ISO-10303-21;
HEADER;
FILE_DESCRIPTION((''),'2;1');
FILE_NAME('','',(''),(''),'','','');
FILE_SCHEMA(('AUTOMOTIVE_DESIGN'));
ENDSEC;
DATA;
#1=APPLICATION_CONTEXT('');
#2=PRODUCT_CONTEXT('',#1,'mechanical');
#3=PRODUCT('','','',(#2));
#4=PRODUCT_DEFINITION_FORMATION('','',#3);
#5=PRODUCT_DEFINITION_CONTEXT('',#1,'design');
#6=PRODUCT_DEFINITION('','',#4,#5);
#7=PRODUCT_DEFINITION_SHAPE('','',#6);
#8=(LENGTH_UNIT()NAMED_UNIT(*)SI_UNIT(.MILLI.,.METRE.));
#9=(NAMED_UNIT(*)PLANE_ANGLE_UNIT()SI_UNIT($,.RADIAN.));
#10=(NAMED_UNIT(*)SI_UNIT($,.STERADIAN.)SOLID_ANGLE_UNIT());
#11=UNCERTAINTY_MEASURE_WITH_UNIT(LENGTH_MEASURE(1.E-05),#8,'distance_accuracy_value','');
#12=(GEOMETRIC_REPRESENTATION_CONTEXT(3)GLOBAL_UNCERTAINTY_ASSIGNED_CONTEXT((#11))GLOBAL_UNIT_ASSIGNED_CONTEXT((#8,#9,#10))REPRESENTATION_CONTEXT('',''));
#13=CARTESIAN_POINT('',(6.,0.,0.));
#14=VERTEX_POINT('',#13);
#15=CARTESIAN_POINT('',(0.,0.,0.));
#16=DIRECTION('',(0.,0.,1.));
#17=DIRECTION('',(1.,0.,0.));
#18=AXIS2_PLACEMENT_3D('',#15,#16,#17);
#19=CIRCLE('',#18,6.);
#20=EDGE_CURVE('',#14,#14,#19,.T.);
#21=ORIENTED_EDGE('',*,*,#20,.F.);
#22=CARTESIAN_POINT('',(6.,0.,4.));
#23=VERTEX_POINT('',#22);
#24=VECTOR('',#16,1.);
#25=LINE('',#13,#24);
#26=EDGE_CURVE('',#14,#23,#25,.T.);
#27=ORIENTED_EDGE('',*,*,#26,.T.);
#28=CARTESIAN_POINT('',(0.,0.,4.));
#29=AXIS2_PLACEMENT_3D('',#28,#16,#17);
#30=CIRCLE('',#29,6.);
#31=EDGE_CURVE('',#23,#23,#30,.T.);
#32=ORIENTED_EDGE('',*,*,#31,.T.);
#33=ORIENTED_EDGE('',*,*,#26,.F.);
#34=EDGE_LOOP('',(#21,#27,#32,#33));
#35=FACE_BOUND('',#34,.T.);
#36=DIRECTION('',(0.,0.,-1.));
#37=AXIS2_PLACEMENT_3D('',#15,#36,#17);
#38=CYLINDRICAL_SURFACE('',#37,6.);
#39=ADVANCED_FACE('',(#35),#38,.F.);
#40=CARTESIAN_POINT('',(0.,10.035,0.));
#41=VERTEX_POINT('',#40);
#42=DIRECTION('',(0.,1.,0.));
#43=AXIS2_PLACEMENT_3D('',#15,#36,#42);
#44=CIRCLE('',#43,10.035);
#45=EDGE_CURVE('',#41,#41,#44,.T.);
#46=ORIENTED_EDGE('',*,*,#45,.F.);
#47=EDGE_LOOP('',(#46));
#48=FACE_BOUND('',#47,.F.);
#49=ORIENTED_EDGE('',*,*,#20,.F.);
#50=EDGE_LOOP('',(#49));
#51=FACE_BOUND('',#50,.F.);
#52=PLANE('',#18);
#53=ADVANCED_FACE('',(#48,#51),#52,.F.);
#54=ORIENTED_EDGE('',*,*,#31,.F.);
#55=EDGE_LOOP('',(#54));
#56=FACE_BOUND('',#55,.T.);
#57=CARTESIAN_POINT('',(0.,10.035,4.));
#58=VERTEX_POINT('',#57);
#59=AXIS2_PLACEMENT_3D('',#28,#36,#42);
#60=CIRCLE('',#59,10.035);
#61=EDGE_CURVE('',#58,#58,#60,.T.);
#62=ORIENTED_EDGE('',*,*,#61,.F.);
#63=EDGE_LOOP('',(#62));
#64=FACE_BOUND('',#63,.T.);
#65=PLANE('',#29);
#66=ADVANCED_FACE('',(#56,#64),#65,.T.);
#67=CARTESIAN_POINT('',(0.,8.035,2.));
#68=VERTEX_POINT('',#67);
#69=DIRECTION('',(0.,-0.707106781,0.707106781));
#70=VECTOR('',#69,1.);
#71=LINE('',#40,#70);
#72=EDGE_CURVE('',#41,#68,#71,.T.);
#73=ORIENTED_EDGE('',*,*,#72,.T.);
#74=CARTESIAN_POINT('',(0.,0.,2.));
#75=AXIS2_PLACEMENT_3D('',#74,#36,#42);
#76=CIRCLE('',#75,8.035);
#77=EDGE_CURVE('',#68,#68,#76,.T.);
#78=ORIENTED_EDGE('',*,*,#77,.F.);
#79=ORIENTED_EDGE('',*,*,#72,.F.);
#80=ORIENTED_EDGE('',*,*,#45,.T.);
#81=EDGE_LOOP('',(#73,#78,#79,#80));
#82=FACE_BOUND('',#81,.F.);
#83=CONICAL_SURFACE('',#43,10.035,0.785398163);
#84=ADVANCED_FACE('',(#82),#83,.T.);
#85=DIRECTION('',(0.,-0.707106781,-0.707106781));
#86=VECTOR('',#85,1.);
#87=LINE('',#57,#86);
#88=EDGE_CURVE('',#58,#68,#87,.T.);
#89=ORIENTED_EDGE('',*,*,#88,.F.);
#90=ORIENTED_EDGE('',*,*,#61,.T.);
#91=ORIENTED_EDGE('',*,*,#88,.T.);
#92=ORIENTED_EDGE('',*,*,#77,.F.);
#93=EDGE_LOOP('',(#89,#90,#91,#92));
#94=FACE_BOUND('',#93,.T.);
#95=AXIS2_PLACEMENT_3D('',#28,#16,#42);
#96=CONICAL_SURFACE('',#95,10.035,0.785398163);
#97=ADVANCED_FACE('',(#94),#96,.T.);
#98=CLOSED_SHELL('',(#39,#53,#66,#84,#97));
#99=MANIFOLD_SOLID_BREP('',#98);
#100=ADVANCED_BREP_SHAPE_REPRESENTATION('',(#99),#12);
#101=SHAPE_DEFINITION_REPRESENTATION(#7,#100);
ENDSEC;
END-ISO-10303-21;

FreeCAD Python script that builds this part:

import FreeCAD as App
import Part
import Sketcher

V = App.Vector
Q = App.Units.Quantity


def add_polygon(sketch, points):
    """Adds a closed chain of lines whose ends are joined by coincident constraints."""
    first, n = sketch.GeometryCount, len(points)
    for a, b in zip(points, points[1:] + points[:1]):
        sketch.addGeometry(Part.LineSegment(App.Vector(*a, 0), App.Vector(*b, 0)), False)
    for i in range(n):
        sketch.addConstraint(Sketcher.Constraint("Coincident", first + i, 2, first + (i + 1) % n, 1))

doc = App.newDocument("Part")
body = doc.addObject("PartDesign::Body", "Body")

# Sketch on XY plane
sketch1 = body.newObject("Sketcher::SketchObject", "Sketch")
sketch1.AttachmentSupport = (doc.getObject("XY_Plane"), [""])
sketch1.MapMode = "FlatFace"
sketch1.addGeometry(Part.Circle(V(0, 0, 0), V(0, 0, 1), 8.035), False)
sketch1.addGeometry(Part.Circle(V(0, 0, 0), V(0, 0, 1), 6), False)
sketch1.addConstraint(Sketcher.Constraint("Coincident", 0, 3, -1, 1))
sketch1.addConstraint(Sketcher.Constraint("Coincident", 1, 3, -1, 1))
sketch1.addConstraint(Sketcher.Constraint("Diameter", 1, Q("12 mm")))
sketch1.addConstraint(Sketcher.Constraint("Diameter", 0, Q("16.07 mm")))
pad1 = body.newObject("PartDesign::Pad", "Pad")
pad1.Profile = sketch1
pad1.Length = 4

# Sketch on YZ plane
sketch2 = body.newObject("Sketcher::SketchObject", "Sketch001")
sketch2.AttachmentSupport = (doc.getObject("YZ_Plane"), [""])
sketch2.MapMode = "FlatFace"
add_polygon(sketch2, [(8.035, 2), (8.035, 0), (10.035, 0)])  # lines 0-2
add_polygon(sketch2, [(8.035, 4), (8.035, 2), (10.035, 4)])  # lines 3-5
sketch2.addConstraint(Sketcher.Constraint("Vertical", 0))
sketch2.addConstraint(Sketcher.Constraint("Horizontal", 1))
sketch2.addConstraint(Sketcher.Constraint("Vertical", 3))
sketch2.addConstraint(Sketcher.Constraint("Horizontal", 5))
sketch2.addConstraint(Sketcher.Constraint("Coincident", 3, 2, 2, 2))
sketch2.addConstraint(Sketcher.Constraint("PointOnObject", 0, 2, -1))
sketch2.addConstraint(Sketcher.Constraint("Perpendicular", 2, 4))
sketch2.addConstraint(Sketcher.Constraint("Vertical", 1, 2, 4, 2))
sketch2.addConstraint(Sketcher.Constraint("Equal", 5, 0))
sketch2.addConstraint(Sketcher.Constraint("DistanceX", 1, 1, 1, 2, Q("2 mm")))
sketch2.addConstraint(Sketcher.Constraint("DistanceX", -1, 1, 0, 2, Q("8.035 mm")))
revolution = body.newObject("PartDesign::Revolution", "Revolution")
revolution.Profile = sketch2
revolution.ReferenceAxis = (sketch2, ["V_Axis"])
revolution.Angle = 360

doc.recompute()
